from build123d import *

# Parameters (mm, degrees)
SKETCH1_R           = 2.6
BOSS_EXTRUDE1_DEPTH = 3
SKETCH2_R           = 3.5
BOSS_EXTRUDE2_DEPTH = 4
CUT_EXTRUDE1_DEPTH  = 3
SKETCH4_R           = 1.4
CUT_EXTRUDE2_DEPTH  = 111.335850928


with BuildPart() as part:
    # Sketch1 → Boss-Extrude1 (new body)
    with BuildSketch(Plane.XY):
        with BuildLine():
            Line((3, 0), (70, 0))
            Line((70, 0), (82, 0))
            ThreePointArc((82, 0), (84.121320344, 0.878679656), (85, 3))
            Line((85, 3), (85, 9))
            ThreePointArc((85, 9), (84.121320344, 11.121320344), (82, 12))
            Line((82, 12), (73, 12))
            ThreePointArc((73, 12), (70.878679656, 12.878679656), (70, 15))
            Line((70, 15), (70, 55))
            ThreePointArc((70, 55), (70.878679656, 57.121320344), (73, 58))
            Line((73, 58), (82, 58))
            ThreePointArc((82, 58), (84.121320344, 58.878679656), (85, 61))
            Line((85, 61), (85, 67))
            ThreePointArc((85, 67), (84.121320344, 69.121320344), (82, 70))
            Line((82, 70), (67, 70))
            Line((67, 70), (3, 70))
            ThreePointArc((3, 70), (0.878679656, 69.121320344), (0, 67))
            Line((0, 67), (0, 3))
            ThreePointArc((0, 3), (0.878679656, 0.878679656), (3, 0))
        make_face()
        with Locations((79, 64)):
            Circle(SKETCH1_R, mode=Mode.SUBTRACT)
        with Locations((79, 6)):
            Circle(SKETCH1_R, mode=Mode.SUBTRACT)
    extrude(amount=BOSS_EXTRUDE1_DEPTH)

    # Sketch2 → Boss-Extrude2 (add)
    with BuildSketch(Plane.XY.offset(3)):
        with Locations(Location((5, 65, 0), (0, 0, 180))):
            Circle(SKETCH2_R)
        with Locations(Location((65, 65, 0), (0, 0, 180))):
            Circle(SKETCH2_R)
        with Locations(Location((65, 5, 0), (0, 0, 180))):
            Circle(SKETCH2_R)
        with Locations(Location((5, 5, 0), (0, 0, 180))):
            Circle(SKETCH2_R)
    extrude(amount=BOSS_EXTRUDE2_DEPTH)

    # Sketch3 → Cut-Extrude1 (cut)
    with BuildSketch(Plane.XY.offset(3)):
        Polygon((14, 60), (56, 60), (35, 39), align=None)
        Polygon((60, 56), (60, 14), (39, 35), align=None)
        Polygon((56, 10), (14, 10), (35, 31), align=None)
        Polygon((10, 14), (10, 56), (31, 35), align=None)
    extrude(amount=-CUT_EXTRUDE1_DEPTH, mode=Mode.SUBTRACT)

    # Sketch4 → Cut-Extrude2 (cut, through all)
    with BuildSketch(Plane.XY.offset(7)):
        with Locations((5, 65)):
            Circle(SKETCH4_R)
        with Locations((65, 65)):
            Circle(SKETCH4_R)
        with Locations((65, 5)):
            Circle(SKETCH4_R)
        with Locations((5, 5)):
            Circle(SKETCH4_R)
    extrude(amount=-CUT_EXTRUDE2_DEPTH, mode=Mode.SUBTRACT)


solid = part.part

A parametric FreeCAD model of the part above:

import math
import FreeCAD as App
import Part
import Sketcher

V = App.Vector

doc = App.newDocument("Part")
body = doc.addObject("PartDesign::Body", "Body")

# Sketch on XY plane
sketch1 = body.newObject("Sketcher::SketchObject", "Sketch")
sketch1.AttachmentSupport = (doc.getObject("XY_Plane"), [""])
sketch1.MapMode = "FlatFace"
sketch1.addGeometry([
    Part.LineSegment(V(3, 0, 0), V(82, 0, 0)),  # 0
    Part.ArcOfCircle(Part.Circle(V(82, 3, 0), V(0, 0, 1), 3), math.radians(-90), math.radians(0)),  # 1
    Part.LineSegment(V(85, 3, 0), V(85, 9, 0)),  # 2
    Part.ArcOfCircle(Part.Circle(V(82, 9, 0), V(0, 0, 1), 3), math.radians(0), math.radians(90)),  # 3
    Part.LineSegment(V(82, 12, 0), V(73, 12, 0)),  # 4
    Part.ArcOfCircle(Part.Circle(V(73, 15, 0), V(0, 0, 1), 3), math.radians(180), math.radians(270)),  # 5
    Part.LineSegment(V(70, 15, 0), V(70, 55, 0)),  # 6
    Part.ArcOfCircle(Part.Circle(V(73, 55, 0), V(0, 0, 1), 3), math.radians(90), math.radians(180)),  # 7
    Part.LineSegment(V(73, 58, 0), V(82, 58, 0)),  # 8
    Part.ArcOfCircle(Part.Circle(V(82, 61, 0), V(0, 0, 1), 3), math.radians(-90), math.radians(0)),  # 9
    Part.LineSegment(V(85, 61, 0), V(85, 67, 0)),  # 10
    Part.ArcOfCircle(Part.Circle(V(82, 67, 0), V(0, 0, 1), 3), math.radians(0), math.radians(90)),  # 11
    Part.LineSegment(V(82, 70, 0), V(3, 70, 0)),  # 12
    Part.ArcOfCircle(Part.Circle(V(3, 67, 0), V(0, 0, 1), 3), math.radians(90), math.radians(180)),  # 13
    Part.LineSegment(V(0, 67, 0), V(0, 3, 0)),  # 14
    Part.ArcOfCircle(Part.Circle(V(3, 3, 0), V(0, 0, 1), 3), math.radians(180), math.radians(270)),  # 15
    Part.Circle(V(79, 6, 0), V(0, 0, 1), 2.6),  # 16
    Part.Circle(V(79, 64, 0), V(0, 0, 1), 2.6),  # 17
], False)
sketch1.addConstraint([
    Sketcher.Constraint("Tangent", 0, 2, 1, 1),
    Sketcher.Constraint("Tangent", 1, 2, 2, 1),
    Sketcher.Constraint("Tangent", 2, 2, 3, 1),
    Sketcher.Constraint("Tangent", 3, 2, 4, 1),
    Sketcher.Constraint("Tangent", 4, 2, 5, 2),
    Sketcher.Constraint("Tangent", 5, 1, 6, 1),
    Sketcher.Constraint("Tangent", 6, 2, 7, 2),
    Sketcher.Constraint("Tangent", 7, 1, 8, 1),
    Sketcher.Constraint("Tangent", 8, 2, 9, 1),
    Sketcher.Constraint("Tangent", 9, 2, 10, 1),
    Sketcher.Constraint("Tangent", 10, 2, 11, 1),
    Sketcher.Constraint("Tangent", 11, 2, 12, 1),
    Sketcher.Constraint("Tangent", 12, 2, 13, 1),
    Sketcher.Constraint("Tangent", 13, 2, 14, 1),
    Sketcher.Constraint("Tangent", 14, 2, 15, 1),
    Sketcher.Constraint("Tangent", 15, 2, 0, 1),
    Sketcher.Constraint("Horizontal", 0),
    Sketcher.Constraint("Vertical", 2),
    Sketcher.Constraint("Horizontal", 4),
    Sketcher.Constraint("Vertical", 6),
    Sketcher.Constraint("Horizontal", 8),
    Sketcher.Constraint("Vertical", 10),
    Sketcher.Constraint("Horizontal", 12),
    Sketcher.Constraint("Vertical", 14),
    Sketcher.Constraint("Equal", 1, 3),
    Sketcher.Constraint("Equal", 3, 5),
    Sketcher.Constraint("Equal", 5, 7),
    Sketcher.Constraint("Equal", 7, 9),
    Sketcher.Constraint("Equal", 9, 11),
    Sketcher.Constraint("Equal", 11, 13),
    Sketcher.Constraint("Equal", 13, 15),
    Sketcher.Constraint("Equal", 16, 17),
    Sketcher.Constraint("PointOnObject", 0, 2, -1),
    Sketcher.Constraint("PointOnObject", 13, 2, -2),
    Sketcher.Constraint("Vertical", 3, 3, 9, 3),
    Sketcher.Constraint("Vertical", 16, 3, 17, 3),
    Sketcher.Constraint("Equal", 2, 10),
    Sketcher.Constraint("Radius", 1, 3.0),
    Sketcher.Constraint("Diameter", 16, 5.2),
    Sketcher.Constraint("DistanceX", 0, 1, 0, 2, 79.0),
    Sketcher.Constraint("DistanceX", 4, 2, 4, 1, 9.0),
    Sketcher.Constraint("DistanceY", 2, 1, 2, 2, 6.0),
    Sketcher.Constraint("DistanceY", 6, 1, 6, 2, 40.0),
    Sketcher.Constraint("DistanceX", -1, 1, 16, 3, 79.0),
    Sketcher.Constraint("DistanceY", -1, 1, 16, 3, 6.0),
    Sketcher.Constraint("DistanceY", -1, 1, 17, 3, 64.0),
])
pad1 = body.newObject("PartDesign::Pad", "Pad")
pad1.Profile = sketch1
pad1.Length = 3

# Sketch on XY plane
sketch2 = body.newObject("Sketcher::SketchObject", "Sketch001")
sketch2.AttachmentSupport = (doc.getObject("XY_Plane"), [""])
sketch2.MapMode = "FlatFace"
sketch2.AttachmentOffset = App.Placement(V(0, 0, 3), App.Rotation())
sketch2.addGeometry([
    Part.Circle(V(5, 65, 0), V(0, 0, 1), 3.5),
    Part.Circle(V(65, 65, 0), V(0, 0, 1), 3.5),
    Part.Circle(V(65, 5, 0), V(0, 0, 1), 3.5),
    Part.Circle(V(5, 5, 0), V(0, 0, 1), 3.5),
], False)
sketch2.addConstraint([
    Sketcher.Constraint("Equal", 0, 1),
    Sketcher.Constraint("Equal", 1, 2),
    Sketcher.Constraint("Equal", 2, 3),
    Sketcher.Constraint("Horizontal", 0, 3, 1, 3),
    Sketcher.Constraint("Horizontal", 2, 3, 3, 3),
    Sketcher.Constraint("Vertical", 1, 3, 2, 3),
    Sketcher.Constraint("Vertical", 0, 3, 3, 3),
    Sketcher.Constraint("Diameter", 0, 7.0),
    Sketcher.Constraint("DistanceX", -1, 1, 0, 3, 5.0),
    Sketcher.Constraint("DistanceY", -1, 1, 0, 3, 65.0),
    Sketcher.Constraint("DistanceX", -1, 1, 1, 3, 65.0),
    Sketcher.Constraint("DistanceY", -1, 1, 2, 3, 5.0),
])
pad2 = body.newObject("PartDesign::Pad", "Pad001")
pad2.Profile = sketch2
pad2.Length = 4

# Sketch on XY plane
sketch3 = body.newObject("Sketcher::SketchObject", "Sketch002")
sketch3.AttachmentSupport = (doc.getObject("XY_Plane"), [""])
sketch3.MapMode = "FlatFace"
sketch3.AttachmentOffset = App.Placement(V(0, 0, 3), App.Rotation())
sketch3.addGeometry([
    Part.LineSegment(V(56, 60, 0), V(14, 60, 0)),  # 0
    Part.LineSegment(V(14, 60, 0), V(35, 39, 0)),  # 1
    Part.LineSegment(V(35, 39, 0), V(56, 60, 0)),  # 2
    Part.LineSegment(V(60, 14, 0), V(60, 56, 0)),  # 3
    Part.LineSegment(V(60, 56, 0), V(39, 35, 0)),  # 4
    Part.LineSegment(V(39, 35, 0), V(60, 14, 0)),  # 5
    Part.LineSegment(V(14, 10, 0), V(56, 10, 0)),  # 6
    Part.LineSegment(V(56, 10, 0), V(35, 31, 0)),  # 7
    Part.LineSegment(V(35, 31, 0), V(14, 10, 0)),  # 8
    Part.LineSegment(V(10, 56, 0), V(10, 14, 0)),  # 9
    Part.LineSegment(V(10, 14, 0), V(31, 35, 0)),  # 10
    Part.LineSegment(V(31, 35, 0), V(10, 56, 0)),  # 11
], False)
sketch3.addConstraint([
    Sketcher.Constraint("Coincident", 0, 2, 1, 1),
    Sketcher.Constraint("Coincident", 1, 2, 2, 1),
    Sketcher.Constraint("Coincident", 2, 2, 0, 1),
    Sketcher.Constraint("Coincident", 3, 2, 4, 1),
    Sketcher.Constraint("Coincident", 4, 2, 5, 1),
    Sketcher.Constraint("Coincident", 5, 2, 3, 1),
    Sketcher.Constraint("Coincident", 6, 2, 7, 1),
    Sketcher.Constraint("Coincident", 7, 2, 8, 1),
    Sketcher.Constraint("Coincident", 8, 2, 6, 1),
    Sketcher.Constraint("Coincident", 9, 2, 10, 1),
    Sketcher.Constraint("Coincident", 10, 2, 11, 1),
    Sketcher.Constraint("Coincident", 11, 2, 9, 1),
    Sketcher.Constraint("Horizontal", 0),
    Sketcher.Constraint("Vertical", 3),
    Sketcher.Constraint("Horizontal", 6),
    Sketcher.Constraint("Vertical", 9),
    Sketcher.Constraint("Perpendicular", 1, 2),
    Sketcher.Constraint("Parallel", 2, 4),
    Sketcher.Constraint("Perpendicular", 4, 5),
    Sketcher.Constraint("Parallel", 5, 7),
    Sketcher.Constraint("Perpendicular", 7, 8),
    Sketcher.Constraint("Parallel", 8, 10),
    Sketcher.Constraint("Perpendicular", 10, 11),
    Sketcher.Constraint("Horizontal", 5, 2, 9, 2),
    Sketcher.Constraint("Horizontal", 4, 2, 10, 2),
    Sketcher.Constraint("Horizontal", 3, 2, 11, 2),
    Sketcher.Constraint("Vertical", 2, 2, 6, 2),
    Sketcher.Constraint("Vertical", 1, 2, 7, 2),
    Sketcher.Constraint("Equal", 6, 3),
    Sketcher.Constraint("DistanceX", 0, 2, 0, 1, 42.0),
    Sketcher.Constraint("DistanceX", -1, 1, 0, 2, 14.0),
    Sketcher.Constraint("DistanceY", -1, 1, 0, 2, 60.0),
    Sketcher.Constraint("DistanceX", -1, 1, 3, 2, 60.0),
    Sketcher.Constraint("DistanceY", -1, 1, 3, 2, 56.0),
    Sketcher.Constraint("DistanceY", -1, 1, 6, 2, 10.0),
    Sketcher.Constraint("DistanceX", -1, 1, 9, 2, 10.0),
])
pocket1 = body.newObject("PartDesign::Pocket", "Pocket")
pocket1.Profile = sketch3
pocket1.Length = 3

# Sketch on XY plane
sketch4 = body.newObject("Sketcher::SketchObject", "Sketch003")
sketch4.AttachmentSupport = (doc.getObject("XY_Plane"), [""])
sketch4.MapMode = "FlatFace"
sketch4.AttachmentOffset = App.Placement(V(0, 0, 7), App.Rotation())
sketch4.addGeometry([
    Part.Circle(V(5, 65, 0), V(0, 0, 1), 1.4),
    Part.Circle(V(65, 65, 0), V(0, 0, 1), 1.4),
    Part.Circle(V(65, 5, 0), V(0, 0, 1), 1.4),
    Part.Circle(V(5, 5, 0), V(0, 0, 1), 1.4),
], False)
sketch4.addConstraint([
    Sketcher.Constraint("Equal", 0, 1),
    Sketcher.Constraint("Equal", 1, 2),
    Sketcher.Constraint("Equal", 2, 3),
    Sketcher.Constraint("Horizontal", 0, 3, 1, 3),
    Sketcher.Constraint("Horizontal", 2, 3, 3, 3),
    Sketcher.Constraint("Vertical", 1, 3, 2, 3),
    Sketcher.Constraint("Vertical", 0, 3, 3, 3),
    Sketcher.Constraint("Diameter", 0, 2.8),
    Sketcher.Constraint("DistanceX", -1, 1, 0, 3, 5.0),
    Sketcher.Constraint("DistanceY", -1, 1, 0, 3, 65.0),
    Sketcher.Constraint("DistanceX", -1, 1, 1, 3, 65.0),
    Sketcher.Constraint("DistanceY", -1, 1, 2, 3, 5.0),
])
pocket2 = body.newObject("PartDesign::Pocket", "Pocket001")
pocket2.Profile = sketch4
pocket2.Type = "ThroughAll"

doc.recompute()
